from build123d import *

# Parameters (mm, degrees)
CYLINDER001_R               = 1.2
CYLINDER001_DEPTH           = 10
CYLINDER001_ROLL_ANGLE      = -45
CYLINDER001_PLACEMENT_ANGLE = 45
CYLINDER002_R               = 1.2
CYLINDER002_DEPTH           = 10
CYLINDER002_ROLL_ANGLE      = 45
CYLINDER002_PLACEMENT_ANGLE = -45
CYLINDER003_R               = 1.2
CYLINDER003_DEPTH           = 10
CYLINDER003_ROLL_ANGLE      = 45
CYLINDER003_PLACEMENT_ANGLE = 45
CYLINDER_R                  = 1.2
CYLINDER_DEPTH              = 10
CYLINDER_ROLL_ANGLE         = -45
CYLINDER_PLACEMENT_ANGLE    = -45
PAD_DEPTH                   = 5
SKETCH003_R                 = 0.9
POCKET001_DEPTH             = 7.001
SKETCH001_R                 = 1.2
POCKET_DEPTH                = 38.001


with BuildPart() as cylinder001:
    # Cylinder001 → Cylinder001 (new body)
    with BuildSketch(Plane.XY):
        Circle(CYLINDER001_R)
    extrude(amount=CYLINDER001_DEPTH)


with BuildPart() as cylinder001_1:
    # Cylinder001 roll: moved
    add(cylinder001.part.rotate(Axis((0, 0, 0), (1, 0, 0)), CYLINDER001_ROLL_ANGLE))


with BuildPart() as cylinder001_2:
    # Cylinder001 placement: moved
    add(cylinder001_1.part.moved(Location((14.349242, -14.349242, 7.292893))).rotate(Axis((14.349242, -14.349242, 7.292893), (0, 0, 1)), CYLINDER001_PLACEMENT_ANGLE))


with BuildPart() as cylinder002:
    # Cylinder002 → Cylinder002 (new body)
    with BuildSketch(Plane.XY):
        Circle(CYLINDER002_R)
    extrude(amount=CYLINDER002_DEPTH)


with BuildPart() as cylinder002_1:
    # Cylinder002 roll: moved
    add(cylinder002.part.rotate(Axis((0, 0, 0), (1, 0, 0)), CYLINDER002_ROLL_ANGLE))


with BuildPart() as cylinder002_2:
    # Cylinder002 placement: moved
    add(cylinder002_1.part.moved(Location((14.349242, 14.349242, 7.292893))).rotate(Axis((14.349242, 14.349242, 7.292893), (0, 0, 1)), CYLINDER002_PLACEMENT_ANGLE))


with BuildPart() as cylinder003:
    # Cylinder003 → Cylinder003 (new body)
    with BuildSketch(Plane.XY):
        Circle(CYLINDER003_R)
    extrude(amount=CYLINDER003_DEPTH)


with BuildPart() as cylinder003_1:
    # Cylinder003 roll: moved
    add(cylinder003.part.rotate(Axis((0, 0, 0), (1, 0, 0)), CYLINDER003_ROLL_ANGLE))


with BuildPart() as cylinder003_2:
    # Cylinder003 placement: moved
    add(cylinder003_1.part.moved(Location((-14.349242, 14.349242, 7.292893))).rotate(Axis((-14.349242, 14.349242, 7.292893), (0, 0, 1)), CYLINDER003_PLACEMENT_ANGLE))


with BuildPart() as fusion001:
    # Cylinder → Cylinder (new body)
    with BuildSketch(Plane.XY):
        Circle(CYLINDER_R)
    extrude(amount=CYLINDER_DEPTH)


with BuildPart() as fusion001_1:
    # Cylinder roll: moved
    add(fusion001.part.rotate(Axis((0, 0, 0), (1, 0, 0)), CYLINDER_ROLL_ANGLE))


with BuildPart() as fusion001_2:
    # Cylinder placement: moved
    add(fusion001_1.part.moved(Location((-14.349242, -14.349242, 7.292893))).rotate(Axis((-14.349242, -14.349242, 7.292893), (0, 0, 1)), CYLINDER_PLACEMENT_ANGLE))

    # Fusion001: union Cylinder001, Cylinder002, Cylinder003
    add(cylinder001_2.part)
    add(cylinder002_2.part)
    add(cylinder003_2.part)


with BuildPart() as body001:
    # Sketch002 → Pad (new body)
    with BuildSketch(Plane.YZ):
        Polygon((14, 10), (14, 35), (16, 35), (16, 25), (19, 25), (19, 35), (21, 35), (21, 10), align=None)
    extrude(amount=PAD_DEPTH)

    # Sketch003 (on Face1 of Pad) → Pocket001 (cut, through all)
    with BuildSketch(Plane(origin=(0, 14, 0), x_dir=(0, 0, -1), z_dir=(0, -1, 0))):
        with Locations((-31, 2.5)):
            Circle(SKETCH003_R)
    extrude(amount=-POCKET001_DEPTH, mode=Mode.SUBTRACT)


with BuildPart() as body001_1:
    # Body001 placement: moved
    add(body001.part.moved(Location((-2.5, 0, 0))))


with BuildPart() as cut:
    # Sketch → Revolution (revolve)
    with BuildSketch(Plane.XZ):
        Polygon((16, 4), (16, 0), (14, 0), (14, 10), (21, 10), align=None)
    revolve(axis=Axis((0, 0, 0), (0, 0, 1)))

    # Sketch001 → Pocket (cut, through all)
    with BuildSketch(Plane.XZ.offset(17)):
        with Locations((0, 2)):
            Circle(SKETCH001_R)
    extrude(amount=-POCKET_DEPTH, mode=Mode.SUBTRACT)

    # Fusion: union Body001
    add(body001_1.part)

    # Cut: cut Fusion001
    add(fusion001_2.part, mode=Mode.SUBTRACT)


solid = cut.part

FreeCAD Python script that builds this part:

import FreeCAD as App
import Part
import Sketcher
from FreeCAD import Vector

doc = App.newDocument("Part")
body = doc.addObject("PartDesign::Body", "Body")

# Sketch on XY plane
sketch1 = body.newObject("Sketcher::SketchObject", "Sketch")
sketch1.AttachmentSupport = (doc.getObject("XY_Plane"), [""])
sketch1.MapMode = "FlatFace"
sketch1.addGeometry(Part.Circle(Vector(0, 0, 0), Vector(0, 0, 1), 1.2), False)
sketch1.addConstraint([
    Sketcher.Constraint("Coincident", 0, 3, -1, 1),
    Sketcher.Constraint("Diameter", 0, 2.4),
])
pad1 = body.newObject("PartDesign::Pad", "Pad")
pad1.Profile = sketch1
pad1.Length = 10
body2 = doc.addObject("PartDesign::Body", "Body001")
doc.recompute()

body.Placement = App.Placement(Vector(0, 0, 0), App.Rotation(Vector(1, 0, 0), 315))
boolean = body2.newObject("PartDesign::Boolean", "Boolean")
boolean.Type = "Fuse"
boolean.addObjects([body])
body3 = doc.addObject("PartDesign::Body", "Body002")
doc.recompute()

body2.Placement = App.Placement(Vector(14.349242, -14.349242, 7.292893), App.Rotation(Vector(0, 0, 1), 45))
boolean2 = body3.newObject("PartDesign::Boolean", "Boolean001")
boolean2.Type = "Fuse"
boolean2.addObjects([body2])
body4 = doc.addObject("PartDesign::Body", "Body003")

# Sketch on XY plane
sketch2 = body4.newObject("Sketcher::SketchObject", "Sketch001")
sketch2.AttachmentSupport = (doc.getObject("XY_Plane003"), [""])
sketch2.MapMode = "FlatFace"
sketch2.addGeometry(Part.Circle(Vector(0, 0, 0), Vector(0, 0, 1), 1.2), False)
sketch2.addConstraint([
    Sketcher.Constraint("Coincident", 0, 3, -1, 1),
    Sketcher.Constraint("Diameter", 0, 2.4),
])
pad2 = body4.newObject("PartDesign::Pad", "Pad001")
pad2.Profile = sketch2
pad2.Length = 10
body5 = doc.addObject("PartDesign::Body", "Body004")
doc.recompute()

body4.Placement = App.Placement(Vector(0, 0, 0), App.Rotation(Vector(1, 0, 0), 45))
boolean3 = body5.newObject("PartDesign::Boolean", "Boolean002")
boolean3.Type = "Fuse"
boolean3.addObjects([body4])
body6 = doc.addObject("PartDesign::Body", "Body005")
doc.recompute()

body5.Placement = App.Placement(Vector(14.349242, 14.349242, 7.292893), App.Rotation(Vector(0, 0, 1), 315))
boolean4 = body6.newObject("PartDesign::Boolean", "Boolean003")
boolean4.Type = "Fuse"
boolean4.addObjects([body5])
body7 = doc.addObject("PartDesign::Body", "Body006")

# Sketch on XY plane
sketch3 = body7.newObject("Sketcher::SketchObject", "Sketch002")
sketch3.AttachmentSupport = (doc.getObject("XY_Plane006"), [""])
sketch3.MapMode = "FlatFace"
sketch3.addGeometry(Part.Circle(Vector(0, 0, 0), Vector(0, 0, 1), 1.2), False)
sketch3.addConstraint([
    Sketcher.Constraint("Coincident", 0, 3, -1, 1),
    Sketcher.Constraint("Diameter", 0, 2.4),
])
pad3 = body7.newObject("PartDesign::Pad", "Pad002")
pad3.Profile = sketch3
pad3.Length = 10
body8 = doc.addObject("PartDesign::Body", "Body007")
doc.recompute()

body7.Placement = App.Placement(Vector(0, 0, 0), App.Rotation(Vector(1, 0, 0), 45))
boolean5 = body8.newObject("PartDesign::Boolean", "Boolean004")
boolean5.Type = "Fuse"
boolean5.addObjects([body7])
body9 = doc.addObject("PartDesign::Body", "Body008")
doc.recompute()

body8.Placement = App.Placement(Vector(-14.349242, 14.349242, 7.292893), App.Rotation(Vector(0, 0, 1), 45))
boolean6 = body9.newObject("PartDesign::Boolean", "Boolean005")
boolean6.Type = "Fuse"
boolean6.addObjects([body8])
body10 = doc.addObject("PartDesign::Body", "Body009")

# Sketch on XY plane
sketch4 = body10.newObject("Sketcher::SketchObject", "Sketch003")
sketch4.AttachmentSupport = (doc.getObject("XY_Plane009"), [""])
sketch4.MapMode = "FlatFace"
sketch4.addGeometry(Part.Circle(Vector(0, 0, 0), Vector(0, 0, 1), 1.2), False)
sketch4.addConstraint([
    Sketcher.Constraint("Coincident", 0, 3, -1, 1),
    Sketcher.Constraint("Diameter", 0, 2.4),
])
pad4 = body10.newObject("PartDesign::Pad", "Pad003")
pad4.Profile = sketch4
pad4.Length = 10
body11 = doc.addObject("PartDesign::Body", "Body010")
doc.recompute()

body10.Placement = App.Placement(Vector(0, 0, 0), App.Rotation(Vector(1, 0, 0), 315))
boolean7 = body11.newObject("PartDesign::Boolean", "Boolean006")
boolean7.Type = "Fuse"
boolean7.addObjects([body10])
body12 = doc.addObject("PartDesign::Body", "Body011")
body12.AllowCompound = True
doc.recompute()

body11.Placement = App.Placement(Vector(-14.349242, -14.349242, 7.292893), App.Rotation(Vector(0, 0, 1), 315))
boolean8 = body12.newObject("PartDesign::Boolean", "Boolean007")
boolean8.Type = "Fuse"
boolean8.addObjects([body11])
doc.recompute()

boolean9 = body12.newObject("PartDesign::Boolean", "Boolean008")
boolean9.Type = "Fuse"
boolean9.addObjects([body3])
doc.recompute()

boolean10 = body12.newObject("PartDesign::Boolean", "Boolean009")
boolean10.Type = "Fuse"
boolean10.addObjects([body6])
doc.recompute()

boolean11 = body12.newObject("PartDesign::Boolean", "Boolean010")
boolean11.Type = "Fuse"
boolean11.addObjects([body9])
body13 = doc.addObject("PartDesign::Body", "Body012")

# Sketch on YZ plane
sketch5 = body13.newObject("Sketcher::SketchObject", "Sketch004")
sketch5.AttachmentSupport = (doc.getObject("YZ_Plane012"), [""])
sketch5.MapMode = "FlatFace"
sketch5.addGeometry([
    Part.LineSegment(Vector(14, 35, 0), Vector(14, 10, 0)),  # 0
    Part.LineSegment(Vector(14, 10, 0), Vector(21, 10, 0)),  # 1
    Part.LineSegment(Vector(21, 10, 0), Vector(21, 35, 0)),  # 2
    Part.LineSegment(Vector(21, 35, 0), Vector(19, 35, 0)),  # 3
    Part.LineSegment(Vector(19, 35, 0), Vector(19, 25, 0)),  # 4
    Part.LineSegment(Vector(19, 25, 0), Vector(16, 25, 0)),  # 5
    Part.LineSegment(Vector(16, 25, 0), Vector(16, 35, 0)),  # 6
    Part.LineSegment(Vector(16, 35, 0), Vector(14, 35, 0)),  # 7
], False)
sketch5.addConstraint([
    Sketcher.Constraint("Coincident", 0, 2, 1, 1),
    Sketcher.Constraint("Coincident", 1, 2, 2, 1),
    Sketcher.Constraint("Coincident", 2, 2, 3, 1),
    Sketcher.Constraint("Coincident", 3, 2, 4, 1),
    Sketcher.Constraint("Coincident", 4, 2, 5, 1),
    Sketcher.Constraint("Coincident", 5, 2, 6, 1),
    Sketcher.Constraint("Coincident", 6, 2, 7, 1),
    Sketcher.Constraint("Coincident", 7, 2, 0, 1),
    Sketcher.Constraint("Vertical", 0),
    Sketcher.Constraint("Horizontal", 1),
    Sketcher.Constraint("Vertical", 2),
    Sketcher.Constraint("Horizontal", 3),
    Sketcher.Constraint("Vertical", 4),
    Sketcher.Constraint("Horizontal", 5),
    Sketcher.Constraint("Vertical", 6),
    Sketcher.Constraint("Horizontal", 7),
    Sketcher.Constraint("Horizontal", 3, 2, 6, 2),
    Sketcher.Constraint("Equal", 3, 7),
    Sketcher.Constraint("DistanceX", 1, 1, 1, 2, 7.0),
    Sketcher.Constraint("DistanceX", 3, 2, 3, 1, 2.0),
    Sketcher.Constraint("DistanceY", 0, 2, 0, 1, 25.0),
    Sketcher.Constraint("DistanceY", 4, 2, 4, 1, 10.0),
    Sketcher.Constraint("DistanceX", -1, 1, 0, 2, 14.0),
    Sketcher.Constraint("DistanceY", -1, 1, 0, 2, 10.0),
])
pad5 = body13.newObject("PartDesign::Pad", "Pad004")
pad5.Profile = sketch5
pad5.Length = 5

# Sketch on XZ plane
sketch6 = body13.newObject("Sketcher::SketchObject", "Sketch005")
sketch6.AttachmentSupport = (doc.getObject("XZ_Plane012"), [""])
sketch6.MapMode = "FlatFace"
sketch6.AttachmentOffset = App.Placement(Vector(0, 0, -14), App.Rotation())
sketch6.addGeometry(Part.Circle(Vector(2.5, 31, 0), Vector(0, 0, 1), 0.9), False)
sketch6.addConstraint([
    Sketcher.Constraint("Diameter", 0, 1.8),
    Sketcher.Constraint("DistanceY", -1, 1, 0, 3, 31.0),
    Sketcher.Constraint("DistanceX", -1, 1, 0, 3, 2.5),
])
pocket1 = body13.newObject("PartDesign::Pocket", "Pocket")
pocket1.Profile = sketch6
pocket1.Type = "ThroughAll"
body14 = doc.addObject("PartDesign::Body", "Body013")
doc.recompute()

body13.Placement = App.Placement(Vector(-2.5, 0, 0), App.Rotation(Vector(0, 0, 1), 0))
boolean12 = body14.newObject("PartDesign::Boolean", "Boolean011")
boolean12.Type = "Fuse"
boolean12.addObjects([body13])
body15 = doc.addObject("PartDesign::Body", "Body014")

# Sketch on XZ plane
sketch7 = body15.newObject("Sketcher::SketchObject", "Sketch006")
sketch7.AttachmentSupport = (doc.getObject("XZ_Plane014"), [""])
sketch7.MapMode = "FlatFace"
sketch7.addGeometry([
    Part.LineSegment(Vector(16, 0, 0), Vector(16, 4, 0)),  # 0
    Part.LineSegment(Vector(16, 4, 0), Vector(21, 10, 0)),  # 1
    Part.LineSegment(Vector(21, 10, 0), Vector(14, 10, 0)),  # 2
    Part.LineSegment(Vector(14, 10, 0), Vector(14, 0, 0)),  # 3
    Part.LineSegment(Vector(14, 0, 0), Vector(16, 0, 0)),  # 4
], False)
sketch7.addConstraint([
    Sketcher.Constraint("Coincident", 0, 2, 1, 1),
    Sketcher.Constraint("Coincident", 1, 2, 2, 1),
    Sketcher.Constraint("Coincident", 2, 2, 3, 1),
    Sketcher.Constraint("Coincident", 3, 2, 4, 1),
    Sketcher.Constraint("Coincident", 4, 2, 0, 1),
    Sketcher.Constraint("Vertical", 0),
    Sketcher.Constraint("Horizontal", 2),
    Sketcher.Constraint("Vertical", 3),
    Sketcher.Constraint("Horizontal", 4),
    Sketcher.Constraint("PointOnObject", 3, 2, -1),
    Sketcher.Constraint("DistanceX", 2, 2, 2, 1, 7.0),
    Sketcher.Constraint("DistanceX", 4, 1, 4, 2, 2.0),
    Sketcher.Constraint("DistanceY", 0, 1, 0, 2, 4.0),
    Sketcher.Constraint("DistanceY", 3, 2, 3, 1, 10.0),
    Sketcher.Constraint("DistanceX", -1, 1, 0, 2, 16.0),
])
revolution = body15.newObject("PartDesign::Revolution", "Revolution")
revolution.Profile = sketch7
revolution.ReferenceAxis = (sketch7, ["V_Axis"])
revolution.Angle = 360

# Sketch on XZ plane
sketch8 = body15.newObject("Sketcher::SketchObject", "Sketch007")
sketch8.AttachmentSupport = (doc.getObject("XZ_Plane014"), [""])
sketch8.MapMode = "FlatFace"
sketch8.AttachmentOffset = App.Placement(Vector(0, 0, 17), App.Rotation())
sketch8.addGeometry(Part.Circle(Vector(0, 2, 0), Vector(0, 0, 1), 1.2), False)
sketch8.addConstraint([
    Sketcher.Constraint("PointOnObject", 0, 3, -2),
    Sketcher.Constraint("Diameter", 0, 2.4),
    Sketcher.Constraint("DistanceY", -1, 1, 0, 3, 2.0),
])
pocket2 = body15.newObject("PartDesign::Pocket", "Pocket001")
pocket2.Profile = sketch8
pocket2.Type = "ThroughAll"
doc.recompute()

boolean13 = body15.newObject("PartDesign::Boolean", "Boolean012")
boolean13.Type = "Fuse"
boolean13.addObjects([body14])
doc.recompute()

boolean14 = body15.newObject("PartDesign::Boolean", "Boolean013")
boolean14.Type = "Cut"
boolean14.addObjects([body12])

doc.recompute()
